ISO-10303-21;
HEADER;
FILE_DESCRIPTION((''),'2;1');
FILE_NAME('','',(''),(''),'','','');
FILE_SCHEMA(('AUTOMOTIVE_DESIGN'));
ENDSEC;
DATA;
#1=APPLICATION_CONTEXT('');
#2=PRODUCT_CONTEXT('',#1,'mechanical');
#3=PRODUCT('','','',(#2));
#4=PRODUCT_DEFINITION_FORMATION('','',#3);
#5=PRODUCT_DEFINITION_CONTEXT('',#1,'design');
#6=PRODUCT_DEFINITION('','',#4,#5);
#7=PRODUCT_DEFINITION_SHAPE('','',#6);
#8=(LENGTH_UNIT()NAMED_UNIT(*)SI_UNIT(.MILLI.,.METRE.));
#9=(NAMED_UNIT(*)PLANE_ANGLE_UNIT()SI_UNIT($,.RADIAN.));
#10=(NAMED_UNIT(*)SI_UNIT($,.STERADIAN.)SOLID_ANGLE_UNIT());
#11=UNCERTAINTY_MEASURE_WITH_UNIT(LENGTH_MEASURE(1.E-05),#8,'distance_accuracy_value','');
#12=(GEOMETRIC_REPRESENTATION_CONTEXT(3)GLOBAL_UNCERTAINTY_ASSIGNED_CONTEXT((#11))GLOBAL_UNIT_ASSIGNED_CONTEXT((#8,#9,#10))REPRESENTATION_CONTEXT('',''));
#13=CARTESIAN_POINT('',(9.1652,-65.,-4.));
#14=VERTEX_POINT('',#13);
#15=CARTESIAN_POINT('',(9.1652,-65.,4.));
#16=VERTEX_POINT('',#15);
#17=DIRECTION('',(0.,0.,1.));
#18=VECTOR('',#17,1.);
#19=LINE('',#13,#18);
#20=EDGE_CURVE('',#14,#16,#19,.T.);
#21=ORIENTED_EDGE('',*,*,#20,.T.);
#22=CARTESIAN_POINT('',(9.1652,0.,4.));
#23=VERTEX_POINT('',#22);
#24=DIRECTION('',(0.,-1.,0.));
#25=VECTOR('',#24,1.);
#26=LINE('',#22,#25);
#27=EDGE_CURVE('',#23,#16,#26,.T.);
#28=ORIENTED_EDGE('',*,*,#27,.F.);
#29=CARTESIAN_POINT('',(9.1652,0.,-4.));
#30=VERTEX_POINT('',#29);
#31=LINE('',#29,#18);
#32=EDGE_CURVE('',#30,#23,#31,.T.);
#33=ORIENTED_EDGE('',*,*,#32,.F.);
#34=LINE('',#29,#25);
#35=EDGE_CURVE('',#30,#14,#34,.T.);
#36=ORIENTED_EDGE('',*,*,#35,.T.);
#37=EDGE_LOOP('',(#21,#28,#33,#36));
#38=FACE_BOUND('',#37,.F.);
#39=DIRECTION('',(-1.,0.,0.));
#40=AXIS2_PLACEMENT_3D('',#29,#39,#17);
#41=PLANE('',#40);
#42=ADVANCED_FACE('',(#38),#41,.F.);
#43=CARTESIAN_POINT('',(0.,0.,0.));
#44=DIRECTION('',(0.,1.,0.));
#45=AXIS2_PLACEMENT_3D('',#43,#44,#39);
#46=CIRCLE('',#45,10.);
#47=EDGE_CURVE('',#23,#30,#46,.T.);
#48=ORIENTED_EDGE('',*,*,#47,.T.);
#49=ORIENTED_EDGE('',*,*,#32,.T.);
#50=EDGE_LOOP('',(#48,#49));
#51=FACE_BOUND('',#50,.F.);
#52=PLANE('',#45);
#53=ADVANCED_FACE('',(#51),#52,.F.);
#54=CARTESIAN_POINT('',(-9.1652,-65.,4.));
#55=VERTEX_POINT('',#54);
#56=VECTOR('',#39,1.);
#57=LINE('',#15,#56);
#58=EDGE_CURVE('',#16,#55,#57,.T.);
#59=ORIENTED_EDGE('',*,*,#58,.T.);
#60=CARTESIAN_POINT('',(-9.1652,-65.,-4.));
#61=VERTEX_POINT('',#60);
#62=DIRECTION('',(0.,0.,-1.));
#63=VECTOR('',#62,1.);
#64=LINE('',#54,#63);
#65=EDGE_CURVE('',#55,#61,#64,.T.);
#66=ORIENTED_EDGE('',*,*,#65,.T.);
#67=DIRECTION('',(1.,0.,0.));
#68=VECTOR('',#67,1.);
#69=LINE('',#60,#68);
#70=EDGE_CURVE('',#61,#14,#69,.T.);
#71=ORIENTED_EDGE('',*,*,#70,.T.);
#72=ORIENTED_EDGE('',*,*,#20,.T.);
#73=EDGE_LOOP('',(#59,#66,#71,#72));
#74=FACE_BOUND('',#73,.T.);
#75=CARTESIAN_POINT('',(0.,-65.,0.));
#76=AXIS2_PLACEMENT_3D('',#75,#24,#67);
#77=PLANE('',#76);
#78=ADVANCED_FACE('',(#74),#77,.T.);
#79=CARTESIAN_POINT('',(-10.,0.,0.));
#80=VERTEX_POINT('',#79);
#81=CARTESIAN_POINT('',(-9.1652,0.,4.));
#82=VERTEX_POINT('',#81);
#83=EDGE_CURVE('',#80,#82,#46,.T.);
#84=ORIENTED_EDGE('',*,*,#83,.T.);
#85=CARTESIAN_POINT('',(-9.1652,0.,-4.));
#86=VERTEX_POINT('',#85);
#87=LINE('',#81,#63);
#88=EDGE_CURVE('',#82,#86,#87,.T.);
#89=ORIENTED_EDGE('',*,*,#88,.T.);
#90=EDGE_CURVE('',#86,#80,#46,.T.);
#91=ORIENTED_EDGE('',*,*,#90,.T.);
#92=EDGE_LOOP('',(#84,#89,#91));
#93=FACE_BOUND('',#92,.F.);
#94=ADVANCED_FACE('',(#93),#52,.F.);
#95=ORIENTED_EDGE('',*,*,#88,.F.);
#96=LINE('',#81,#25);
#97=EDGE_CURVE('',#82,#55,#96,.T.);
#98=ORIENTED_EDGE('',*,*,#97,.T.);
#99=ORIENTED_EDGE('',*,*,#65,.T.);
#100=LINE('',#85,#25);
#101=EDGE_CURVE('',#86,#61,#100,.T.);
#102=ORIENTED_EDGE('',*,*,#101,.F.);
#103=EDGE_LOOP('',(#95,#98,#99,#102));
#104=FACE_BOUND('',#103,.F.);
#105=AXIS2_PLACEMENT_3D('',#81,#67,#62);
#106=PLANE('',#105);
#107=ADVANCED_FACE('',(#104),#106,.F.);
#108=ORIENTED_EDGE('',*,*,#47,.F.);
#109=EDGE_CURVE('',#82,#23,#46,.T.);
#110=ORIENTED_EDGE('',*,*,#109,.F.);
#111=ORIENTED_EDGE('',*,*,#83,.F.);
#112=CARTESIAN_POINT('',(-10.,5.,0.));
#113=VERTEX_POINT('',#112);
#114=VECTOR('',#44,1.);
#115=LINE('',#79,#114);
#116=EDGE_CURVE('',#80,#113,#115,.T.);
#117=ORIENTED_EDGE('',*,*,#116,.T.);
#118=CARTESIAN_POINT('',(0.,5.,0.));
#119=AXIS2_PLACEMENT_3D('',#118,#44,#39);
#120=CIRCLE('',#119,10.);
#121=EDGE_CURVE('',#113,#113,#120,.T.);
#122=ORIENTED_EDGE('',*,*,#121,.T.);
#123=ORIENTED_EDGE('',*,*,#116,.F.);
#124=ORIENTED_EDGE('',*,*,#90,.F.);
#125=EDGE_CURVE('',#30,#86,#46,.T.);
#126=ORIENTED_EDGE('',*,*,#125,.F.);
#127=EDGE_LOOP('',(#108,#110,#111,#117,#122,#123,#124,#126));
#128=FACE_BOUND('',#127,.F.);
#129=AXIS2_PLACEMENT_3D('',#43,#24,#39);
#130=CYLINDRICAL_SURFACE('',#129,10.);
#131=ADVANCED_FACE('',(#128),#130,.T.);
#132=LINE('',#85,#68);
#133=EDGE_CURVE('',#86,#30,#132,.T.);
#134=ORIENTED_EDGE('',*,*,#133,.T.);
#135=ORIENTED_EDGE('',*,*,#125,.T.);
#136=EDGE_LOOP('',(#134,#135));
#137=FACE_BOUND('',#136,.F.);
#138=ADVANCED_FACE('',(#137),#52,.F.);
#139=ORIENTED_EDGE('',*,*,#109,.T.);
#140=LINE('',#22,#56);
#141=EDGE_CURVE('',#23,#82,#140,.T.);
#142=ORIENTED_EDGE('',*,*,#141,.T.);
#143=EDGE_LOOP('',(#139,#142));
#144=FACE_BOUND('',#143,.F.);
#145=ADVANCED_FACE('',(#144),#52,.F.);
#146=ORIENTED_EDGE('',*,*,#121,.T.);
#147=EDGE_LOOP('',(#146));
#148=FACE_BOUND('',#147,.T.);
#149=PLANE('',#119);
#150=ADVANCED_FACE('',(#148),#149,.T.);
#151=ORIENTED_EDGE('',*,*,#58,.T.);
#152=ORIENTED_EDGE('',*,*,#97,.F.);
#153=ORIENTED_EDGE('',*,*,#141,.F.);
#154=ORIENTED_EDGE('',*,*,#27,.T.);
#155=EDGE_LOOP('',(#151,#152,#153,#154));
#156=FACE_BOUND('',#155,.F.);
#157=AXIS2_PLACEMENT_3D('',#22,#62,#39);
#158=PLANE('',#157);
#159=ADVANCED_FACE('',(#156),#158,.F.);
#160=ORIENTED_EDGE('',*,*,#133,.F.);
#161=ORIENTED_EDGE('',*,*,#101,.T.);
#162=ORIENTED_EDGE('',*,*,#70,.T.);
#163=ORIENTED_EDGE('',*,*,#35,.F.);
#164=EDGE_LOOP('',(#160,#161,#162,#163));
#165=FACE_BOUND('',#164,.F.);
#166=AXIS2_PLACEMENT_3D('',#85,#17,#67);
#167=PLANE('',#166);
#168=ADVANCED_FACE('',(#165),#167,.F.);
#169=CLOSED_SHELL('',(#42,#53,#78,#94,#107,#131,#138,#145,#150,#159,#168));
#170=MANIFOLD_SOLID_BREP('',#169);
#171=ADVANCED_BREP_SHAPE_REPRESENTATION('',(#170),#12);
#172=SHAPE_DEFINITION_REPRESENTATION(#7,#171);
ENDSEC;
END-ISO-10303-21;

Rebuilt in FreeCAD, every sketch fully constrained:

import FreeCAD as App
import Part
import Sketcher


def add_polygon(sketch, points):
    """Adds a closed chain of lines whose ends are joined by coincident constraints."""
    first, n = sketch.GeometryCount, len(points)
    for a, b in zip(points, points[1:] + points[:1]):
        sketch.addGeometry(Part.LineSegment(App.Vector(*a, 0), App.Vector(*b, 0)), False)
    for i in range(n):
        sketch.addConstraint(Sketcher.Constraint("Coincident", first + i, 2, first + (i + 1) % n, 1))

doc = App.newDocument("Part")
body = doc.addObject("PartDesign::Body", "Body")

# Sketch on XZ plane
sketch1 = doc.addObject("Sketcher::SketchObject", "Sketch")
body.addObject(sketch1)
sketch1.AttachmentSupport = (doc.XZ_Plane, [""])
sketch1.MapMode = "FlatFace"
sketch1.addGeometry(Part.Circle(App.Vector(0, 0, 0), App.Vector(0, 0, 1), 10), False)
sketch1.addConstraint(Sketcher.Constraint("Coincident", 0, 3, -1, 1))
sketch1.addConstraint(Sketcher.Constraint("Diameter", 0, 20.0))
pad1 = doc.addObject("PartDesign::Pad", "Pad")
body.addObject(pad1)
pad1.Profile = sketch1
pad1.Length = 5
pad1.Reversed = True

# Sketch on XZ plane
sketch2 = doc.addObject("Sketcher::SketchObject", "Sketch001")
body.addObject(sketch2)
sketch2.AttachmentSupport = (doc.XZ_Plane, [""])
sketch2.MapMode = "FlatFace"
add_polygon(sketch2, [(9, -4), (9, 4), (-9, 4), (-9, -4)])  # lines 0-3
sketch2.addConstraint(Sketcher.Constraint("Vertical", 0))
sketch2.addConstraint(Sketcher.Constraint("Horizontal", 1))
sketch2.addConstraint(Sketcher.Constraint("Vertical", 2))
sketch2.addConstraint(Sketcher.Constraint("Horizontal", 3))
sketch2.addConstraint(Sketcher.Constraint("Symmetric", 0, 2, 2, 2, -1, 1))
sketch2.addConstraint(Sketcher.Constraint("DistanceY", 0, 1, 0, 2, 8.0))
sketch2.addConstraint(Sketcher.Constraint("DistanceX", 1, 2, 1, 1, 18.3304))
pad2 = doc.addObject("PartDesign::Pad", "Pad001")
body.addObject(pad2)
pad2.Profile = sketch2
pad2.Length = 65

doc.recompute()
